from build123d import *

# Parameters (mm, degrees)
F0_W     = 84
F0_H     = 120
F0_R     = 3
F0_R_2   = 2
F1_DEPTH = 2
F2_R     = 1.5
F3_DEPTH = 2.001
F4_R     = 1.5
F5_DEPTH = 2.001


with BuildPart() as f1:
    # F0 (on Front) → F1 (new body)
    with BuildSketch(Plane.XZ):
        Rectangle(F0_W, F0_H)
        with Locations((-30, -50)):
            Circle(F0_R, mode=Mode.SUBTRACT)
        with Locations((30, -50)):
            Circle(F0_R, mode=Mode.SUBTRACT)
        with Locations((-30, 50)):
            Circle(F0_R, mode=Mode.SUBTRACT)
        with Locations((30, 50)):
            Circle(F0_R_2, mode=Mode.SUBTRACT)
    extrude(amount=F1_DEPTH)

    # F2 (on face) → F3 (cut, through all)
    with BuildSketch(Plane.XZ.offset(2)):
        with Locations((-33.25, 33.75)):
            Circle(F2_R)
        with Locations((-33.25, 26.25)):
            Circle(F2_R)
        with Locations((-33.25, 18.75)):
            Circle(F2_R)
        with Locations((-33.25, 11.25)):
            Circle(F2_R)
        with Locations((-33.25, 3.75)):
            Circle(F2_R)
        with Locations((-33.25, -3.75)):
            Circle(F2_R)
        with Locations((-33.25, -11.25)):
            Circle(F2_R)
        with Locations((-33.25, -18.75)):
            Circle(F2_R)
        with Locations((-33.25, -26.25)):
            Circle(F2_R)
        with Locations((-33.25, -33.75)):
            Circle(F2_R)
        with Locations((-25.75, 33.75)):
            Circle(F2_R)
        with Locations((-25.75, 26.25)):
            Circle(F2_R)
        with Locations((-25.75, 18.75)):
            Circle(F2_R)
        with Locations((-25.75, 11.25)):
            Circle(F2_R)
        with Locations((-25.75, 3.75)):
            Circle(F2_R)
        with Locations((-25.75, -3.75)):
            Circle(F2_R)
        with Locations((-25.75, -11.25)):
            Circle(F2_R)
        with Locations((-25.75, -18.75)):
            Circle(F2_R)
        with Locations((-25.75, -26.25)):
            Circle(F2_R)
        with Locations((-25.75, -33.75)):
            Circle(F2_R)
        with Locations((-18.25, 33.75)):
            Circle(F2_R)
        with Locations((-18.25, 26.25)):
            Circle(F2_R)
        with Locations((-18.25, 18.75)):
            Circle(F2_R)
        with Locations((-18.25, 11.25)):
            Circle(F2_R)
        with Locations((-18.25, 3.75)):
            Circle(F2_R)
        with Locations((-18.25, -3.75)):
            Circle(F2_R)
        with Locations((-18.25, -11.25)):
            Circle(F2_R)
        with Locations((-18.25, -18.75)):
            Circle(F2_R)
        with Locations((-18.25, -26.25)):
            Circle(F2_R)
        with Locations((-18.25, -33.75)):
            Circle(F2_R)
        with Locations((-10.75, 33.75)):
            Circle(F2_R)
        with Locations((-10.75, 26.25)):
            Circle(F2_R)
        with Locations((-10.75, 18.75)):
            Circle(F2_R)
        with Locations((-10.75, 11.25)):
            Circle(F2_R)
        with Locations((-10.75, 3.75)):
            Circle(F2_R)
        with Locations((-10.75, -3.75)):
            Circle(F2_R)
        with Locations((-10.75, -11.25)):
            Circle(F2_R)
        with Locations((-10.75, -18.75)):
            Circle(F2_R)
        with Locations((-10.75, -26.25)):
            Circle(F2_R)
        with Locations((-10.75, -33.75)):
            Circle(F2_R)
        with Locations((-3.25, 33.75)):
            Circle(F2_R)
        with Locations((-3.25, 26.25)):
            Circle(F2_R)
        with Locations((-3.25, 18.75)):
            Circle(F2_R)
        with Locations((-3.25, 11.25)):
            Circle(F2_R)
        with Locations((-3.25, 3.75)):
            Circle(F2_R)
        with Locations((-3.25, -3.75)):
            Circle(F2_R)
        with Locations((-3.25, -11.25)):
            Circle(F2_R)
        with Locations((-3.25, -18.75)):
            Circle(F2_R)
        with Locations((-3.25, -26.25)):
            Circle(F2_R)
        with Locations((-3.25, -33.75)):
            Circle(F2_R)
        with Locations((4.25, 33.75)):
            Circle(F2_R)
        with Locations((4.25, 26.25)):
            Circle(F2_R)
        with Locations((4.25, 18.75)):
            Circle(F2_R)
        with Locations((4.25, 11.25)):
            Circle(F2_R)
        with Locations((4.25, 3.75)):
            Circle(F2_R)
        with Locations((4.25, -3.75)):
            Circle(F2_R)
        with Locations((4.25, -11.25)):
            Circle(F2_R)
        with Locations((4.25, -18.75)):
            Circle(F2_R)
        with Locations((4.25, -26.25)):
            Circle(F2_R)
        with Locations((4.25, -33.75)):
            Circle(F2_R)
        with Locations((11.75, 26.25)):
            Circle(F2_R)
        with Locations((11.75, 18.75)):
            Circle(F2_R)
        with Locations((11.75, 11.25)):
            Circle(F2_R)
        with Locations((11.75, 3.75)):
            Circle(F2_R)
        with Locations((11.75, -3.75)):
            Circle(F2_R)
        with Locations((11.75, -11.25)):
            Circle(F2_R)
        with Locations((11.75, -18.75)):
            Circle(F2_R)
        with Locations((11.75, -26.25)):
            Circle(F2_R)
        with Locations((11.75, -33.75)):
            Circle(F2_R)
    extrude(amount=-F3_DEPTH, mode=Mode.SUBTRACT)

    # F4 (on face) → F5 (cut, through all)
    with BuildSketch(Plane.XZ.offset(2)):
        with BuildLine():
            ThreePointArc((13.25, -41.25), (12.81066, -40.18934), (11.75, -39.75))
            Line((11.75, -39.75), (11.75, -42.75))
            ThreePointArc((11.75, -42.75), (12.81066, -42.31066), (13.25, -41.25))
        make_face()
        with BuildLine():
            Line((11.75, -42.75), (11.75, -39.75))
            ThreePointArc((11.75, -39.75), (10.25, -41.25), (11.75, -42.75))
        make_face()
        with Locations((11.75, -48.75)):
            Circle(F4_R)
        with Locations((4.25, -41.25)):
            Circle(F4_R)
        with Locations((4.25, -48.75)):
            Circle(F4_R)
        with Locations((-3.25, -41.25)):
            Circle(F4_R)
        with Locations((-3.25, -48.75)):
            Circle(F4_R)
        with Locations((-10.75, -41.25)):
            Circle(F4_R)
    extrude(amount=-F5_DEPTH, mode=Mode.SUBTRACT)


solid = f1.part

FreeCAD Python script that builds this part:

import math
import FreeCAD as App
import Part
import Sketcher

V = App.Vector

doc = App.newDocument("Part")
params = doc.addObject("Spreadsheet::Sheet", "Params")
for row, (alias, value) in enumerate([
    ("sketch1_diameter", "6 mm"),
    ("sketch1_diameter2", "4 mm"),
    ("sketch1_width", "84 mm"),
    ("sketch1_height", "120 mm"),
    ("pad1_length", "2 mm"),
    ("sketch2_diameter", "3 mm"),
    ("sketch3_diameter", "3 mm"),
], start=1):
    params.set(f"A{row}", alias)
    params.set(f"B{row}", "=" + value)
    params.setAlias(f"B{row}", alias)

body = doc.addObject("PartDesign::Body", "Body")

sketch1 = doc.addObject("Sketcher::SketchObject", "Sketch")
body.addObject(sketch1)
sketch1.AttachmentSupport = (doc.XZ_Plane, [""])
sketch1.MapMode = "FlatFace"
sketch1.addGeometry(Part.LineSegment(V(-42, 60, 0), V(-42, -60, 0)), False)
sketch1.addGeometry(Part.LineSegment(V(-42, -60, 0), V(42, -60, 0)), False)
sketch1.addGeometry(Part.LineSegment(V(42, -60, 0), V(42, 60, 0)), False)
sketch1.addGeometry(Part.LineSegment(V(42, 60, 0), V(-42, 60, 0)), False)
sketch1.addGeometry(Part.Circle(V(-30, -50, 0), V(0, 0, 1), 3), False)
sketch1.addGeometry(Part.Circle(V(30, -50, 0), V(0, 0, 1), 3), False)
sketch1.addGeometry(Part.Circle(V(-30, 50, 0), V(0, 0, 1), 3), False)
sketch1.addGeometry(Part.Circle(V(30, 50, 0), V(0, 0, 1), 2), False)
sketch1.addConstraint(Sketcher.Constraint("Coincident", 0, 2, 1, 1))
sketch1.addConstraint(Sketcher.Constraint("Coincident", 1, 2, 2, 1))
sketch1.addConstraint(Sketcher.Constraint("Coincident", 2, 2, 3, 1))
sketch1.addConstraint(Sketcher.Constraint("Coincident", 3, 2, 0, 1))
sketch1.addConstraint(Sketcher.Constraint("Vertical", 0))
sketch1.addConstraint(Sketcher.Constraint("Horizontal", 1))
sketch1.addConstraint(Sketcher.Constraint("Vertical", 2))
sketch1.addConstraint(Sketcher.Constraint("Horizontal", 3))
sketch1.addConstraint(Sketcher.Constraint("Equal", 4, 5))
sketch1.addConstraint(Sketcher.Constraint("Equal", 5, 6))
sketch1.addConstraint(Sketcher.Constraint("Symmetric", 5, 3, 6, 3, -1, 1))
sketch1.addConstraint(Sketcher.Constraint("Symmetric", 4, 3, 7, 3, -1, 1))
sketch1.addConstraint(Sketcher.Constraint("Symmetric", 0, 2, 2, 2, -1, 1))
sketch1.addConstraint(Sketcher.Constraint("Symmetric", 4, 3, 5, 3, -2))
sketch1.addConstraint(Sketcher.Constraint("Diameter", 4, 6.0))
sketch1.addConstraint(Sketcher.Constraint("Diameter", 7, 4.0))
sketch1.addConstraint(Sketcher.Constraint("DistanceX", 1, 1, 1, 2, 84.0))
sketch1.addConstraint(Sketcher.Constraint("DistanceY", 0, 2, 0, 1, 120.0))
sketch1.addConstraint(Sketcher.Constraint("DistanceX", 4, 3, -1, 1, 30.0))
sketch1.addConstraint(Sketcher.Constraint("DistanceY", 4, 3, -1, 1, 50.0))
sketch1.setExpression("Constraints[14]", "Params.sketch1_diameter")
sketch1.setExpression("Constraints[15]", "Params.sketch1_diameter2")
sketch1.setExpression("Constraints[16]", "Params.sketch1_width")
sketch1.setExpression("Constraints[17]", "Params.sketch1_height")
pad1 = doc.addObject("PartDesign::Pad", "Pad")
body.addObject(pad1)
pad1.Profile = sketch1
pad1.setExpression("Length", "Params.pad1_length")

sketch2 = doc.addObject("Sketcher::SketchObject", "Sketch001")
body.addObject(sketch2)
sketch2.AttachmentSupport = (doc.XZ_Plane, [""])
sketch2.MapMode = "FlatFace"
sketch2.AttachmentOffset = App.Placement(V(0, 0, 2), App.Rotation())
sketch2.addGeometry(Part.Circle(V(-33.2, 33.8, 0), V(0, 0, 1), 1.5), False)
sketch2.addGeometry(Part.Circle(V(-33.2, 26.2, 0), V(0, 0, 1), 1.5), False)
sketch2.addGeometry(Part.Circle(V(-33.2, 18.8, 0), V(0, 0, 1), 1.5), False)
sketch2.addGeometry(Part.Circle(V(-33.2, 11.2, 0), V(0, 0, 1), 1.5), False)
sketch2.addGeometry(Part.Circle(V(-33.2, 3.8, 0), V(0, 0, 1), 1.5), False)
sketch2.addGeometry(Part.Circle(V(-33.2, -3.8, 0), V(0, 0, 1), 1.5), False)
sketch2.addGeometry(Part.Circle(V(-33.2, -11.2, 0), V(0, 0, 1), 1.5), False)
sketch2.addGeometry(Part.Circle(V(-33.2, -18.8, 0), V(0, 0, 1), 1.5), False)
sketch2.addGeometry(Part.Circle(V(-33.2, -26.2, 0), V(0, 0, 1), 1.5), False)
sketch2.addGeometry(Part.Circle(V(-33.2, -33.8, 0), V(0, 0, 1), 1.5), False)
sketch2.addGeometry(Part.Circle(V(-25.8, 33.8, 0), V(0, 0, 1), 1.5), False)
sketch2.addGeometry(Part.Circle(V(-25.8, 26.2, 0), V(0, 0, 1), 1.5), False)
sketch2.addGeometry(Part.Circle(V(-25.8, 18.8, 0), V(0, 0, 1), 1.5), False)
sketch2.addGeometry(Part.Circle(V(-25.8, 11.2, 0), V(0, 0, 1), 1.5), False)
sketch2.addGeometry(Part.Circle(V(-25.8, 3.8, 0), V(0, 0, 1), 1.5), False)
sketch2.addGeometry(Part.Circle(V(-25.8, -3.8, 0), V(0, 0, 1), 1.5), False)
sketch2.addGeometry(Part.Circle(V(-25.8, -11.2, 0), V(0, 0, 1), 1.5), False)
sketch2.addGeometry(Part.Circle(V(-25.8, -18.8, 0), V(0, 0, 1), 1.5), False)
sketch2.addGeometry(Part.Circle(V(-25.8, -26.2, 0), V(0, 0, 1), 1.5), False)
sketch2.addGeometry(Part.Circle(V(-25.8, -33.8, 0), V(0, 0, 1), 1.5), False)
sketch2.addGeometry(Part.Circle(V(-18.2, 33.8, 0), V(0, 0, 1), 1.5), False)
sketch2.addGeometry(Part.Circle(V(-18.2, 26.2, 0), V(0, 0, 1), 1.5), False)
sketch2.addGeometry(Part.Circle(V(-18.2, 18.8, 0), V(0, 0, 1), 1.5), False)
sketch2.addGeometry(Part.Circle(V(-18.2, 11.2, 0), V(0, 0, 1), 1.5), False)
sketch2.addGeometry(Part.Circle(V(-18.2, 3.8, 0), V(0, 0, 1), 1.5), False)
sketch2.addGeometry(Part.Circle(V(-18.2, -3.8, 0), V(0, 0, 1), 1.5), False)
sketch2.addGeometry(Part.Circle(V(-18.2, -11.2, 0), V(0, 0, 1), 1.5), False)
sketch2.addGeometry(Part.Circle(V(-18.2, -18.8, 0), V(0, 0, 1), 1.5), False)
sketch2.addGeometry(Part.Circle(V(-18.2, -26.2, 0), V(0, 0, 1), 1.5), False)
sketch2.addGeometry(Part.Circle(V(-18.2, -33.8, 0), V(0, 0, 1), 1.5), False)
sketch2.addGeometry(Part.Circle(V(-10.8, 33.8, 0), V(0, 0, 1), 1.5), False)
sketch2.addGeometry(Part.Circle(V(-10.8, 26.2, 0), V(0, 0, 1), 1.5), False)
sketch2.addGeometry(Part.Circle(V(-10.8, 18.8, 0), V(0, 0, 1), 1.5), False)
sketch2.addGeometry(Part.Circle(V(-10.8, 11.2, 0), V(0, 0, 1), 1.5), False)
sketch2.addGeometry(Part.Circle(V(-10.8, 3.8, 0), V(0, 0, 1), 1.5), False)
sketch2.addGeometry(Part.Circle(V(-10.8, -3.8, 0), V(0, 0, 1), 1.5), False)
sketch2.addGeometry(Part.Circle(V(-10.8, -11.2, 0), V(0, 0, 1), 1.5), False)
sketch2.addGeometry(Part.Circle(V(-10.8, -18.8, 0), V(0, 0, 1), 1.5), False)
sketch2.addGeometry(Part.Circle(V(-10.8, -26.2, 0), V(0, 0, 1), 1.5), False)
sketch2.addGeometry(Part.Circle(V(-10.8, -33.8, 0), V(0, 0, 1), 1.5), False)
sketch2.addGeometry(Part.Circle(V(-3.2, 33.8, 0), V(0, 0, 1), 1.5), False)
sketch2.addGeometry(Part.Circle(V(-3.2, 26.2, 0), V(0, 0, 1), 1.5), False)
sketch2.addGeometry(Part.Circle(V(-3.2, 18.8, 0), V(0, 0, 1), 1.5), False)
sketch2.addGeometry(Part.Circle(V(-3.2, 11.2, 0), V(0, 0, 1), 1.5), False)
sketch2.addGeometry(Part.Circle(V(-3.2, 3.8, 0), V(0, 0, 1), 1.5), False)
sketch2.addGeometry(Part.Circle(V(-3.2, -3.8, 0), V(0, 0, 1), 1.5), False)
sketch2.addGeometry(Part.Circle(V(-3.2, -11.2, 0), V(0, 0, 1), 1.5), False)
sketch2.addGeometry(Part.Circle(V(-3.2, -18.8, 0), V(0, 0, 1), 1.5), False)
sketch2.addGeometry(Part.Circle(V(-3.2, -26.2, 0), V(0, 0, 1), 1.5), False)
sketch2.addGeometry(Part.Circle(V(-3.2, -33.8, 0), V(0, 0, 1), 1.5), False)
sketch2.addGeometry(Part.Circle(V(4.2, 33.8, 0), V(0, 0, 1), 1.5), False)
sketch2.addGeometry(Part.Circle(V(4.2, 26.2, 0), V(0, 0, 1), 1.5), False)
sketch2.addGeometry(Part.Circle(V(4.2, 18.8, 0), V(0, 0, 1), 1.5), False)
sketch2.addGeometry(Part.Circle(V(4.2, 11.2, 0), V(0, 0, 1), 1.5), False)
sketch2.addGeometry(Part.Circle(V(4.2, 3.8, 0), V(0, 0, 1), 1.5), False)
sketch2.addGeometry(Part.Circle(V(4.2, -3.8, 0), V(0, 0, 1), 1.5), False)
sketch2.addGeometry(Part.Circle(V(4.2, -11.2, 0), V(0, 0, 1), 1.5), False)
sketch2.addGeometry(Part.Circle(V(4.2, -18.8, 0), V(0, 0, 1), 1.5), False)
sketch2.addGeometry(Part.Circle(V(4.2, -26.2, 0), V(0, 0, 1), 1.5), False)
sketch2.addGeometry(Part.Circle(V(4.2, -33.8, 0), V(0, 0, 1), 1.5), False)
sketch2.addGeometry(Part.Circle(V(11.8, 26.2, 0), V(0, 0, 1), 1.5), False)
sketch2.addGeometry(Part.Circle(V(11.8, 18.8, 0), V(0, 0, 1), 1.5), False)
sketch2.addGeometry(Part.Circle(V(11.8, 11.2, 0), V(0, 0, 1), 1.5), False)
sketch2.addGeometry(Part.Circle(V(11.8, 3.8, 0), V(0, 0, 1), 1.5), False)
sketch2.addGeometry(Part.Circle(V(11.8, -3.8, 0), V(0, 0, 1), 1.5), False)
sketch2.addGeometry(Part.Circle(V(11.8, -11.2, 0), V(0, 0, 1), 1.5), False)
sketch2.addGeometry(Part.Circle(V(11.8, -18.8, 0), V(0, 0, 1), 1.5), False)
sketch2.addGeometry(Part.Circle(V(11.8, -26.2, 0), V(0, 0, 1), 1.5), False)
sketch2.addGeometry(Part.Circle(V(11.8, -33.8, 0), V(0, 0, 1), 1.5), False)
sketch2.addConstraint(Sketcher.Constraint("Equal", 0, 1))
sketch2.addConstraint(Sketcher.Constraint("Equal", 1, 2))
sketch2.addConstraint(Sketcher.Constraint("Equal", 2, 3))
sketch2.addConstraint(Sketcher.Constraint("Equal", 3, 4))
sketch2.addConstraint(Sketcher.Constraint("Equal", 4, 5))
sketch2.addConstraint(Sketcher.Constraint("Equal", 5, 6))
sketch2.addConstraint(Sketcher.Constraint("Equal", 6, 7))
sketch2.addConstraint(Sketcher.Constraint("Equal", 7, 8))
sketch2.addConstraint(Sketcher.Constraint("Equal", 8, 9))
sketch2.addConstraint(Sketcher.Constraint("Equal", 9, 10))
sketch2.addConstraint(Sketcher.Constraint("Equal", 10, 11))
sketch2.addConstraint(Sketcher.Constraint("Equal", 11, 12))
sketch2.addConstraint(Sketcher.Constraint("Equal", 12, 13))
sketch2.addConstraint(Sketcher.Constraint("Equal", 13, 14))
sketch2.addConstraint(Sketcher.Constraint("Equal", 14, 15))
sketch2.addConstraint(Sketcher.Constraint("Equal", 15, 16))
sketch2.addConstraint(Sketcher.Constraint("Equal", 16, 17))
sketch2.addConstraint(Sketcher.Constraint("Equal", 17, 18))
sketch2.addConstraint(Sketcher.Constraint("Equal", 18, 19))
sketch2.addConstraint(Sketcher.Constraint("Equal", 19, 20))
sketch2.addConstraint(Sketcher.Constraint("Equal", 20, 21))
sketch2.addConstraint(Sketcher.Constraint("Equal", 21, 22))
sketch2.addConstraint(Sketcher.Constraint("Equal", 22, 23))
sketch2.addConstraint(Sketcher.Constraint("Equal", 23, 24))
sketch2.addConstraint(Sketcher.Constraint("Equal", 24, 25))
sketch2.addConstraint(Sketcher.Constraint("Equal", 25, 26))
sketch2.addConstraint(Sketcher.Constraint("Equal", 26, 27))
sketch2.addConstraint(Sketcher.Constraint("Equal", 27, 28))
sketch2.addConstraint(Sketcher.Constraint("Equal", 28, 29))
sketch2.addConstraint(Sketcher.Constraint("Equal", 29, 30))
sketch2.addConstraint(Sketcher.Constraint("Equal", 30, 31))
sketch2.addConstraint(Sketcher.Constraint("Equal", 31, 32))
sketch2.addConstraint(Sketcher.Constraint("Equal", 32, 33))
sketch2.addConstraint(Sketcher.Constraint("Equal", 33, 34))
sketch2.addConstraint(Sketcher.Constraint("Equal", 34, 35))
sketch2.addConstraint(Sketcher.Constraint("Equal", 35, 36))
sketch2.addConstraint(Sketcher.Constraint("Equal", 36, 37))
sketch2.addConstraint(Sketcher.Constraint("Equal", 37, 38))
sketch2.addConstraint(Sketcher.Constraint("Equal", 38, 39))
sketch2.addConstraint(Sketcher.Constraint("Equal", 39, 40))
sketch2.addConstraint(Sketcher.Constraint("Equal", 40, 41))
sketch2.addConstraint(Sketcher.Constraint("Equal", 41, 42))
sketch2.addConstraint(Sketcher.Constraint("Equal", 42, 43))
sketch2.addConstraint(Sketcher.Constraint("Equal", 43, 44))
sketch2.addConstraint(Sketcher.Constraint("Equal", 44, 45))
sketch2.addConstraint(Sketcher.Constraint("Equal", 45, 46))
sketch2.addConstraint(Sketcher.Constraint("Equal", 46, 47))
sketch2.addConstraint(Sketcher.Constraint("Equal", 47, 48))
sketch2.addConstraint(Sketcher.Constraint("Equal", 48, 49))
sketch2.addConstraint(Sketcher.Constraint("Equal", 49, 50))
sketch2.addConstraint(Sketcher.Constraint("Equal", 50, 51))
sketch2.addConstraint(Sketcher.Constraint("Equal", 51, 52))
sketch2.addConstraint(Sketcher.Constraint("Equal", 52, 53))
sketch2.addConstraint(Sketcher.Constraint("Equal", 53, 54))
sketch2.addConstraint(Sketcher.Constraint("Equal", 54, 55))
sketch2.addConstraint(Sketcher.Constraint("Equal", 55, 56))
sketch2.addConstraint(Sketcher.Constraint("Equal", 56, 57))
sketch2.addConstraint(Sketcher.Constraint("Equal", 57, 58))
sketch2.addConstraint(Sketcher.Constraint("Equal", 58, 59))
sketch2.addConstraint(Sketcher.Constraint("Equal", 59, 60))
sketch2.addConstraint(Sketcher.Constraint("Equal", 60, 61))
sketch2.addConstraint(Sketcher.Constraint("Equal", 61, 62))
sketch2.addConstraint(Sketcher.Constraint("Equal", 62, 63))
sketch2.addConstraint(Sketcher.Constraint("Equal", 63, 64))
sketch2.addConstraint(Sketcher.Constraint("Equal", 64, 65))
sketch2.addConstraint(Sketcher.Constraint("Equal", 65, 66))
sketch2.addConstraint(Sketcher.Constraint("Equal", 66, 67))
sketch2.addConstraint(Sketcher.Constraint("Equal", 67, 68))
sketch2.addConstraint(Sketcher.Constraint("Symmetric", 4, 3, 5, 3, -1))
sketch2.addConstraint(Sketcher.Constraint("Symmetric", 3, 3, 6, 3, -1))
sketch2.addConstraint(Sketcher.Constraint("Symmetric", 2, 3, 7, 3, -1))
sketch2.addConstraint(Sketcher.Constraint("Symmetric", 1, 3, 8, 3, -1))
sketch2.addConstraint(Sketcher.Constraint("Symmetric", 0, 3, 9, 3, -1))
sketch2.addConstraint(Sketcher.Constraint("Symmetric", 14, 3, 15, 3, -1))
sketch2.addConstraint(Sketcher.Constraint("Symmetric", 13, 3, 16, 3, -1))
sketch2.addConstraint(Sketcher.Constraint("Symmetric", 12, 3, 17, 3, -1))
sketch2.addConstraint(Sketcher.Constraint("Symmetric", 11, 3, 18, 3, -1))
sketch2.addConstraint(Sketcher.Constraint("Symmetric", 10, 3, 19, 3, -1))
sketch2.addConstraint(Sketcher.Constraint("Symmetric", 24, 3, 25, 3, -1))
sketch2.addConstraint(Sketcher.Constraint("Symmetric", 23, 3, 26, 3, -1))
sketch2.addConstraint(Sketcher.Constraint("Symmetric", 22, 3, 27, 3, -1))
sketch2.addConstraint(Sketcher.Constraint("Symmetric", 21, 3, 28, 3, -1))
sketch2.addConstraint(Sketcher.Constraint("Symmetric", 20, 3, 29, 3, -1))
sketch2.addConstraint(Sketcher.Constraint("Symmetric", 34, 3, 35, 3, -1))
sketch2.addConstraint(Sketcher.Constraint("Symmetric", 33, 3, 36, 3, -1))
sketch2.addConstraint(Sketcher.Constraint("Symmetric", 32, 3, 37, 3, -1))
sketch2.addConstraint(Sketcher.Constraint("Symmetric", 31, 3, 38, 3, -1))
sketch2.addConstraint(Sketcher.Constraint("Symmetric", 30, 3, 39, 3, -1))
sketch2.addConstraint(Sketcher.Constraint("Symmetric", 44, 3, 45, 3, -1))
sketch2.addConstraint(Sketcher.Constraint("Symmetric", 43, 3, 46, 3, -1))
sketch2.addConstraint(Sketcher.Constraint("Symmetric", 42, 3, 47, 3, -1))
sketch2.addConstraint(Sketcher.Constraint("Symmetric", 41, 3, 48, 3, -1))
sketch2.addConstraint(Sketcher.Constraint("Symmetric", 40, 3, 49, 3, -1))
sketch2.addConstraint(Sketcher.Constraint("Symmetric", 54, 3, 55, 3, -1))
sketch2.addConstraint(Sketcher.Constraint("Symmetric", 53, 3, 56, 3, -1))
sketch2.addConstraint(Sketcher.Constraint("Symmetric", 52, 3, 57, 3, -1))
sketch2.addConstraint(Sketcher.Constraint("Symmetric", 51, 3, 58, 3, -1))
sketch2.addConstraint(Sketcher.Constraint("Symmetric", 50, 3, 59, 3, -1))
sketch2.addConstraint(Sketcher.Constraint("Symmetric", 63, 3, 64, 3, -1))
sketch2.addConstraint(Sketcher.Constraint("Symmetric", 62, 3, 65, 3, -1))
sketch2.addConstraint(Sketcher.Constraint("Symmetric", 61, 3, 66, 3, -1))
sketch2.addConstraint(Sketcher.Constraint("Symmetric", 60, 3, 67, 3, -1))
sketch2.addConstraint(Sketcher.Constraint("Horizontal", 0, 3, 10, 3))
sketch2.addConstraint(Sketcher.Constraint("Horizontal", 1, 3, 11, 3))
sketch2.addConstraint(Sketcher.Constraint("Horizontal", 2, 3, 12, 3))
sketch2.addConstraint(Sketcher.Constraint("Horizontal", 3, 3, 13, 3))
sketch2.addConstraint(Sketcher.Constraint("Horizontal", 4, 3, 14, 3))
sketch2.addConstraint(Sketcher.Constraint("Horizontal", 10, 3, 20, 3))
sketch2.addConstraint(Sketcher.Constraint("Horizontal", 11, 3, 21, 3))
sketch2.addConstraint(Sketcher.Constraint("Horizontal", 12, 3, 22, 3))
sketch2.addConstraint(Sketcher.Constraint("Horizontal", 13, 3, 23, 3))
sketch2.addConstraint(Sketcher.Constraint("Horizontal", 14, 3, 24, 3))
sketch2.addConstraint(Sketcher.Constraint("Horizontal", 20, 3, 30, 3))
sketch2.addConstraint(Sketcher.Constraint("Horizontal", 21, 3, 31, 3))
sketch2.addConstraint(Sketcher.Constraint("Horizontal", 22, 3, 32, 3))
sketch2.addConstraint(Sketcher.Constraint("Horizontal", 23, 3, 33, 3))
sketch2.addConstraint(Sketcher.Constraint("Horizontal", 24, 3, 34, 3))
sketch2.addConstraint(Sketcher.Constraint("Horizontal", 30, 3, 40, 3))
sketch2.addConstraint(Sketcher.Constraint("Horizontal", 31, 3, 41, 3))
sketch2.addConstraint(Sketcher.Constraint("Horizontal", 32, 3, 42, 3))
sketch2.addConstraint(Sketcher.Constraint("Horizontal", 33, 3, 43, 3))
sketch2.addConstraint(Sketcher.Constraint("Horizontal", 34, 3, 44, 3))
sketch2.addConstraint(Sketcher.Constraint("Horizontal", 40, 3, 50, 3))
sketch2.addConstraint(Sketcher.Constraint("Horizontal", 41, 3, 51, 3))
sketch2.addConstraint(Sketcher.Constraint("Horizontal", 42, 3, 52, 3))
sketch2.addConstraint(Sketcher.Constraint("Horizontal", 43, 3, 53, 3))
sketch2.addConstraint(Sketcher.Constraint("Horizontal", 44, 3, 54, 3))
sketch2.addConstraint(Sketcher.Constraint("Horizontal", 51, 3, 60, 3))
sketch2.addConstraint(Sketcher.Constraint("Horizontal", 52, 3, 61, 3))
sketch2.addConstraint(Sketcher.Constraint("Horizontal", 53, 3, 62, 3))
sketch2.addConstraint(Sketcher.Constraint("Horizontal", 54, 3, 63, 3))
sketch2.addConstraint(Sketcher.Constraint("Horizontal", 59, 3, 68, 3))
sketch2.addConstraint(Sketcher.Constraint("Vertical", 0, 3, 1, 3))
sketch2.addConstraint(Sketcher.Constraint("Vertical", 1, 3, 2, 3))
sketch2.addConstraint(Sketcher.Constraint("Vertical", 2, 3, 3, 3))
sketch2.addConstraint(Sketcher.Constraint("Vertical", 3, 3, 4, 3))
sketch2.addConstraint(Sketcher.Constraint("Vertical", 10, 3, 11, 3))
sketch2.addConstraint(Sketcher.Constraint("Vertical", 11, 3, 12, 3))
sketch2.addConstraint(Sketcher.Constraint("Vertical", 12, 3, 13, 3))
sketch2.addConstraint(Sketcher.Constraint("Vertical", 13, 3, 14, 3))
sketch2.addConstraint(Sketcher.Constraint("Vertical", 20, 3, 21, 3))
sketch2.addConstraint(Sketcher.Constraint("Vertical", 21, 3, 22, 3))
sketch2.addConstraint(Sketcher.Constraint("Vertical", 22, 3, 23, 3))
sketch2.addConstraint(Sketcher.Constraint("Vertical", 23, 3, 24, 3))
sketch2.addConstraint(Sketcher.Constraint("Vertical", 30, 3, 31, 3))
sketch2.addConstraint(Sketcher.Constraint("Vertical", 31, 3, 32, 3))
sketch2.addConstraint(Sketcher.Constraint("Vertical", 32, 3, 33, 3))
sketch2.addConstraint(Sketcher.Constraint("Vertical", 33, 3, 34, 3))
sketch2.addConstraint(Sketcher.Constraint("Vertical", 40, 3, 41, 3))
sketch2.addConstraint(Sketcher.Constraint("Vertical", 41, 3, 42, 3))
sketch2.addConstraint(Sketcher.Constraint("Vertical", 42, 3, 43, 3))
sketch2.addConstraint(Sketcher.Constraint("Vertical", 43, 3, 44, 3))
sketch2.addConstraint(Sketcher.Constraint("Vertical", 50, 3, 51, 3))
sketch2.addConstraint(Sketcher.Constraint("Vertical", 51, 3, 52, 3))
sketch2.addConstraint(Sketcher.Constraint("Vertical", 52, 3, 53, 3))
sketch2.addConstraint(Sketcher.Constraint("Vertical", 53, 3, 54, 3))
sketch2.addConstraint(Sketcher.Constraint("Vertical", 60, 3, 61, 3))
sketch2.addConstraint(Sketcher.Constraint("Vertical", 61, 3, 62, 3))
sketch2.addConstraint(Sketcher.Constraint("Vertical", 62, 3, 63, 3))
sketch2.addConstraint(Sketcher.Constraint("Vertical", 67, 3, 68, 3))
sketch2.addConstraint(Sketcher.Constraint("Diameter", 0, 3.0))
sketch2.addConstraint(Sketcher.Constraint("DistanceX", 0, 3, -1, 1, 33.25))
sketch2.addConstraint(Sketcher.Constraint("DistanceY", -1, 1, 0, 3, 33.75))
sketch2.addConstraint(Sketcher.Constraint("DistanceY", -1, 1, 1, 3, 26.25))
sketch2.addConstraint(Sketcher.Constraint("DistanceY", -1, 1, 2, 3, 18.75))
sketch2.addConstraint(Sketcher.Constraint("DistanceY", -1, 1, 3, 3, 11.25))
sketch2.addConstraint(Sketcher.Constraint("DistanceY", -1, 1, 4, 3, 3.75))
sketch2.addConstraint(Sketcher.Constraint("DistanceX", 10, 3, -1, 1, 25.75))
sketch2.addConstraint(Sketcher.Constraint("DistanceX", 20, 3, -1, 1, 18.25))
sketch2.addConstraint(Sketcher.Constraint("DistanceX", 30, 3, -1, 1, 10.75))
sketch2.addConstraint(Sketcher.Constraint("DistanceX", 40, 3, -1, 1, 3.25))
sketch2.addConstraint(Sketcher.Constraint("DistanceX", -1, 1, 50, 3, 4.25))
sketch2.addConstraint(Sketcher.Constraint("DistanceX", -1, 1, 60, 3, 11.75))
sketch2.setExpression("Constraints[160]", "Params.sketch2_diameter")
pocket1 = doc.addObject("PartDesign::Pocket", "Pocket")
body.addObject(pocket1)
pocket1.Profile = sketch2
pocket1.Type = "ThroughAll"

sketch3 = doc.addObject("Sketcher::SketchObject", "Sketch002")
body.addObject(sketch3)
sketch3.AttachmentSupport = (doc.XZ_Plane, [""])
sketch3.MapMode = "FlatFace"
sketch3.AttachmentOffset = App.Placement(V(0, 0, 2), App.Rotation())
sketch3.addGeometry(Part.ArcOfCircle(Part.Circle(V(11.7, -41.3, 0), V(0, 0, 1), 1.5), math.radians(0), math.radians(90)), False)
sketch3.addGeometry(Part.ArcOfCircle(Part.Circle(V(11.8, -41.2, 0), V(0, 0, 1), 1.5), math.radians(90), math.radians(270)), False)
sketch3.addGeometry(Part.ArcOfCircle(Part.Circle(V(11.7, -41.2, 0), V(0, 0, 1), 1.5), math.radians(-90), math.radians(0)), False)
sketch3.addGeometry(Part.Circle(V(11.8, -48.8, 0), V(0, 0, 1), 1.5), False)
sketch3.addGeometry(Part.Circle(V(4.2, -41.2, 0), V(0, 0, 1), 1.5), False)
sketch3.addGeometry(Part.Circle(V(4.2, -48.8, 0), V(0, 0, 1), 1.5), False)
sketch3.addGeometry(Part.Circle(V(-3.2, -41.2, 0), V(0, 0, 1), 1.5), False)
sketch3.addGeometry(Part.Circle(V(-3.2, -48.8, 0), V(0, 0, 1), 1.5), False)
sketch3.addGeometry(Part.Circle(V(-10.8, -41.2, 0), V(0, 0, 1), 1.5), False)
sketch3.addConstraint(Sketcher.Constraint("Tangent", 0, 2, 1, 1))
sketch3.addConstraint(Sketcher.Constraint("Tangent", 1, 2, 2, 1))
sketch3.addConstraint(Sketcher.Constraint("Tangent", 2, 2, 0, 1))
sketch3.addConstraint(Sketcher.Constraint("Equal", 2, 3))
sketch3.addConstraint(Sketcher.Constraint("Equal", 3, 4))
sketch3.addConstraint(Sketcher.Constraint("Equal", 4, 5))
sketch3.addConstraint(Sketcher.Constraint("Equal", 5, 6))
sketch3.addConstraint(Sketcher.Constraint("Equal", 6, 7))
sketch3.addConstraint(Sketcher.Constraint("Equal", 7, 8))
sketch3.addConstraint(Sketcher.Constraint("Horizontal", 2, 3, 4, 3))
sketch3.addConstraint(Sketcher.Constraint("Horizontal", 3, 3, 5, 3))
sketch3.addConstraint(Sketcher.Constraint("Horizontal", 4, 3, 6, 3))
sketch3.addConstraint(Sketcher.Constraint("Horizontal", 5, 3, 7, 3))
sketch3.addConstraint(Sketcher.Constraint("Horizontal", 6, 3, 8, 3))
sketch3.addConstraint(Sketcher.Constraint("Horizontal", 8, 3, 2, 2))
sketch3.addConstraint(Sketcher.Constraint("Vertical", 2, 3, 3, 3))
sketch3.addConstraint(Sketcher.Constraint("Vertical", 4, 3, 5, 3))
sketch3.addConstraint(Sketcher.Constraint("Vertical", 6, 3, 7, 3))
sketch3.addConstraint(Sketcher.Constraint("Vertical", 3, 3, 0, 2))
sketch3.addConstraint(Sketcher.Constraint("Vertical", 0, 2, 1, 2))
sketch3.addConstraint(Sketcher.Constraint("Diameter", 3, 3.0))
sketch3.addConstraint(Sketcher.Constraint("DistanceX", 6, 3, 0, 3, 14.999999))
sketch3.addConstraint(Sketcher.Constraint("DistanceX", 8, 3, 4, 3, 15.0))
sketch3.addConstraint(Sketcher.Constraint("DistanceY", 3, 3, 0, 2, 9.0))
sketch3.addConstraint(Sketcher.Constraint("DistanceX", 4, 3, 0, 3, 7.499999))
sketch3.addConstraint(Sketcher.Constraint("DistanceX", -1, 1, 0, 3, 11.749999))
sketch3.addConstraint(Sketcher.Constraint("DistanceY", 0, 3, -1, 1, 41.250001))
sketch3.setExpression("Constraints[20]", "Params.sketch3_diameter")
pocket2 = doc.addObject("PartDesign::Pocket", "Pocket001")
body.addObject(pocket2)
pocket2.Profile = sketch3
pocket2.Type = "ThroughAll"

doc.recompute()
